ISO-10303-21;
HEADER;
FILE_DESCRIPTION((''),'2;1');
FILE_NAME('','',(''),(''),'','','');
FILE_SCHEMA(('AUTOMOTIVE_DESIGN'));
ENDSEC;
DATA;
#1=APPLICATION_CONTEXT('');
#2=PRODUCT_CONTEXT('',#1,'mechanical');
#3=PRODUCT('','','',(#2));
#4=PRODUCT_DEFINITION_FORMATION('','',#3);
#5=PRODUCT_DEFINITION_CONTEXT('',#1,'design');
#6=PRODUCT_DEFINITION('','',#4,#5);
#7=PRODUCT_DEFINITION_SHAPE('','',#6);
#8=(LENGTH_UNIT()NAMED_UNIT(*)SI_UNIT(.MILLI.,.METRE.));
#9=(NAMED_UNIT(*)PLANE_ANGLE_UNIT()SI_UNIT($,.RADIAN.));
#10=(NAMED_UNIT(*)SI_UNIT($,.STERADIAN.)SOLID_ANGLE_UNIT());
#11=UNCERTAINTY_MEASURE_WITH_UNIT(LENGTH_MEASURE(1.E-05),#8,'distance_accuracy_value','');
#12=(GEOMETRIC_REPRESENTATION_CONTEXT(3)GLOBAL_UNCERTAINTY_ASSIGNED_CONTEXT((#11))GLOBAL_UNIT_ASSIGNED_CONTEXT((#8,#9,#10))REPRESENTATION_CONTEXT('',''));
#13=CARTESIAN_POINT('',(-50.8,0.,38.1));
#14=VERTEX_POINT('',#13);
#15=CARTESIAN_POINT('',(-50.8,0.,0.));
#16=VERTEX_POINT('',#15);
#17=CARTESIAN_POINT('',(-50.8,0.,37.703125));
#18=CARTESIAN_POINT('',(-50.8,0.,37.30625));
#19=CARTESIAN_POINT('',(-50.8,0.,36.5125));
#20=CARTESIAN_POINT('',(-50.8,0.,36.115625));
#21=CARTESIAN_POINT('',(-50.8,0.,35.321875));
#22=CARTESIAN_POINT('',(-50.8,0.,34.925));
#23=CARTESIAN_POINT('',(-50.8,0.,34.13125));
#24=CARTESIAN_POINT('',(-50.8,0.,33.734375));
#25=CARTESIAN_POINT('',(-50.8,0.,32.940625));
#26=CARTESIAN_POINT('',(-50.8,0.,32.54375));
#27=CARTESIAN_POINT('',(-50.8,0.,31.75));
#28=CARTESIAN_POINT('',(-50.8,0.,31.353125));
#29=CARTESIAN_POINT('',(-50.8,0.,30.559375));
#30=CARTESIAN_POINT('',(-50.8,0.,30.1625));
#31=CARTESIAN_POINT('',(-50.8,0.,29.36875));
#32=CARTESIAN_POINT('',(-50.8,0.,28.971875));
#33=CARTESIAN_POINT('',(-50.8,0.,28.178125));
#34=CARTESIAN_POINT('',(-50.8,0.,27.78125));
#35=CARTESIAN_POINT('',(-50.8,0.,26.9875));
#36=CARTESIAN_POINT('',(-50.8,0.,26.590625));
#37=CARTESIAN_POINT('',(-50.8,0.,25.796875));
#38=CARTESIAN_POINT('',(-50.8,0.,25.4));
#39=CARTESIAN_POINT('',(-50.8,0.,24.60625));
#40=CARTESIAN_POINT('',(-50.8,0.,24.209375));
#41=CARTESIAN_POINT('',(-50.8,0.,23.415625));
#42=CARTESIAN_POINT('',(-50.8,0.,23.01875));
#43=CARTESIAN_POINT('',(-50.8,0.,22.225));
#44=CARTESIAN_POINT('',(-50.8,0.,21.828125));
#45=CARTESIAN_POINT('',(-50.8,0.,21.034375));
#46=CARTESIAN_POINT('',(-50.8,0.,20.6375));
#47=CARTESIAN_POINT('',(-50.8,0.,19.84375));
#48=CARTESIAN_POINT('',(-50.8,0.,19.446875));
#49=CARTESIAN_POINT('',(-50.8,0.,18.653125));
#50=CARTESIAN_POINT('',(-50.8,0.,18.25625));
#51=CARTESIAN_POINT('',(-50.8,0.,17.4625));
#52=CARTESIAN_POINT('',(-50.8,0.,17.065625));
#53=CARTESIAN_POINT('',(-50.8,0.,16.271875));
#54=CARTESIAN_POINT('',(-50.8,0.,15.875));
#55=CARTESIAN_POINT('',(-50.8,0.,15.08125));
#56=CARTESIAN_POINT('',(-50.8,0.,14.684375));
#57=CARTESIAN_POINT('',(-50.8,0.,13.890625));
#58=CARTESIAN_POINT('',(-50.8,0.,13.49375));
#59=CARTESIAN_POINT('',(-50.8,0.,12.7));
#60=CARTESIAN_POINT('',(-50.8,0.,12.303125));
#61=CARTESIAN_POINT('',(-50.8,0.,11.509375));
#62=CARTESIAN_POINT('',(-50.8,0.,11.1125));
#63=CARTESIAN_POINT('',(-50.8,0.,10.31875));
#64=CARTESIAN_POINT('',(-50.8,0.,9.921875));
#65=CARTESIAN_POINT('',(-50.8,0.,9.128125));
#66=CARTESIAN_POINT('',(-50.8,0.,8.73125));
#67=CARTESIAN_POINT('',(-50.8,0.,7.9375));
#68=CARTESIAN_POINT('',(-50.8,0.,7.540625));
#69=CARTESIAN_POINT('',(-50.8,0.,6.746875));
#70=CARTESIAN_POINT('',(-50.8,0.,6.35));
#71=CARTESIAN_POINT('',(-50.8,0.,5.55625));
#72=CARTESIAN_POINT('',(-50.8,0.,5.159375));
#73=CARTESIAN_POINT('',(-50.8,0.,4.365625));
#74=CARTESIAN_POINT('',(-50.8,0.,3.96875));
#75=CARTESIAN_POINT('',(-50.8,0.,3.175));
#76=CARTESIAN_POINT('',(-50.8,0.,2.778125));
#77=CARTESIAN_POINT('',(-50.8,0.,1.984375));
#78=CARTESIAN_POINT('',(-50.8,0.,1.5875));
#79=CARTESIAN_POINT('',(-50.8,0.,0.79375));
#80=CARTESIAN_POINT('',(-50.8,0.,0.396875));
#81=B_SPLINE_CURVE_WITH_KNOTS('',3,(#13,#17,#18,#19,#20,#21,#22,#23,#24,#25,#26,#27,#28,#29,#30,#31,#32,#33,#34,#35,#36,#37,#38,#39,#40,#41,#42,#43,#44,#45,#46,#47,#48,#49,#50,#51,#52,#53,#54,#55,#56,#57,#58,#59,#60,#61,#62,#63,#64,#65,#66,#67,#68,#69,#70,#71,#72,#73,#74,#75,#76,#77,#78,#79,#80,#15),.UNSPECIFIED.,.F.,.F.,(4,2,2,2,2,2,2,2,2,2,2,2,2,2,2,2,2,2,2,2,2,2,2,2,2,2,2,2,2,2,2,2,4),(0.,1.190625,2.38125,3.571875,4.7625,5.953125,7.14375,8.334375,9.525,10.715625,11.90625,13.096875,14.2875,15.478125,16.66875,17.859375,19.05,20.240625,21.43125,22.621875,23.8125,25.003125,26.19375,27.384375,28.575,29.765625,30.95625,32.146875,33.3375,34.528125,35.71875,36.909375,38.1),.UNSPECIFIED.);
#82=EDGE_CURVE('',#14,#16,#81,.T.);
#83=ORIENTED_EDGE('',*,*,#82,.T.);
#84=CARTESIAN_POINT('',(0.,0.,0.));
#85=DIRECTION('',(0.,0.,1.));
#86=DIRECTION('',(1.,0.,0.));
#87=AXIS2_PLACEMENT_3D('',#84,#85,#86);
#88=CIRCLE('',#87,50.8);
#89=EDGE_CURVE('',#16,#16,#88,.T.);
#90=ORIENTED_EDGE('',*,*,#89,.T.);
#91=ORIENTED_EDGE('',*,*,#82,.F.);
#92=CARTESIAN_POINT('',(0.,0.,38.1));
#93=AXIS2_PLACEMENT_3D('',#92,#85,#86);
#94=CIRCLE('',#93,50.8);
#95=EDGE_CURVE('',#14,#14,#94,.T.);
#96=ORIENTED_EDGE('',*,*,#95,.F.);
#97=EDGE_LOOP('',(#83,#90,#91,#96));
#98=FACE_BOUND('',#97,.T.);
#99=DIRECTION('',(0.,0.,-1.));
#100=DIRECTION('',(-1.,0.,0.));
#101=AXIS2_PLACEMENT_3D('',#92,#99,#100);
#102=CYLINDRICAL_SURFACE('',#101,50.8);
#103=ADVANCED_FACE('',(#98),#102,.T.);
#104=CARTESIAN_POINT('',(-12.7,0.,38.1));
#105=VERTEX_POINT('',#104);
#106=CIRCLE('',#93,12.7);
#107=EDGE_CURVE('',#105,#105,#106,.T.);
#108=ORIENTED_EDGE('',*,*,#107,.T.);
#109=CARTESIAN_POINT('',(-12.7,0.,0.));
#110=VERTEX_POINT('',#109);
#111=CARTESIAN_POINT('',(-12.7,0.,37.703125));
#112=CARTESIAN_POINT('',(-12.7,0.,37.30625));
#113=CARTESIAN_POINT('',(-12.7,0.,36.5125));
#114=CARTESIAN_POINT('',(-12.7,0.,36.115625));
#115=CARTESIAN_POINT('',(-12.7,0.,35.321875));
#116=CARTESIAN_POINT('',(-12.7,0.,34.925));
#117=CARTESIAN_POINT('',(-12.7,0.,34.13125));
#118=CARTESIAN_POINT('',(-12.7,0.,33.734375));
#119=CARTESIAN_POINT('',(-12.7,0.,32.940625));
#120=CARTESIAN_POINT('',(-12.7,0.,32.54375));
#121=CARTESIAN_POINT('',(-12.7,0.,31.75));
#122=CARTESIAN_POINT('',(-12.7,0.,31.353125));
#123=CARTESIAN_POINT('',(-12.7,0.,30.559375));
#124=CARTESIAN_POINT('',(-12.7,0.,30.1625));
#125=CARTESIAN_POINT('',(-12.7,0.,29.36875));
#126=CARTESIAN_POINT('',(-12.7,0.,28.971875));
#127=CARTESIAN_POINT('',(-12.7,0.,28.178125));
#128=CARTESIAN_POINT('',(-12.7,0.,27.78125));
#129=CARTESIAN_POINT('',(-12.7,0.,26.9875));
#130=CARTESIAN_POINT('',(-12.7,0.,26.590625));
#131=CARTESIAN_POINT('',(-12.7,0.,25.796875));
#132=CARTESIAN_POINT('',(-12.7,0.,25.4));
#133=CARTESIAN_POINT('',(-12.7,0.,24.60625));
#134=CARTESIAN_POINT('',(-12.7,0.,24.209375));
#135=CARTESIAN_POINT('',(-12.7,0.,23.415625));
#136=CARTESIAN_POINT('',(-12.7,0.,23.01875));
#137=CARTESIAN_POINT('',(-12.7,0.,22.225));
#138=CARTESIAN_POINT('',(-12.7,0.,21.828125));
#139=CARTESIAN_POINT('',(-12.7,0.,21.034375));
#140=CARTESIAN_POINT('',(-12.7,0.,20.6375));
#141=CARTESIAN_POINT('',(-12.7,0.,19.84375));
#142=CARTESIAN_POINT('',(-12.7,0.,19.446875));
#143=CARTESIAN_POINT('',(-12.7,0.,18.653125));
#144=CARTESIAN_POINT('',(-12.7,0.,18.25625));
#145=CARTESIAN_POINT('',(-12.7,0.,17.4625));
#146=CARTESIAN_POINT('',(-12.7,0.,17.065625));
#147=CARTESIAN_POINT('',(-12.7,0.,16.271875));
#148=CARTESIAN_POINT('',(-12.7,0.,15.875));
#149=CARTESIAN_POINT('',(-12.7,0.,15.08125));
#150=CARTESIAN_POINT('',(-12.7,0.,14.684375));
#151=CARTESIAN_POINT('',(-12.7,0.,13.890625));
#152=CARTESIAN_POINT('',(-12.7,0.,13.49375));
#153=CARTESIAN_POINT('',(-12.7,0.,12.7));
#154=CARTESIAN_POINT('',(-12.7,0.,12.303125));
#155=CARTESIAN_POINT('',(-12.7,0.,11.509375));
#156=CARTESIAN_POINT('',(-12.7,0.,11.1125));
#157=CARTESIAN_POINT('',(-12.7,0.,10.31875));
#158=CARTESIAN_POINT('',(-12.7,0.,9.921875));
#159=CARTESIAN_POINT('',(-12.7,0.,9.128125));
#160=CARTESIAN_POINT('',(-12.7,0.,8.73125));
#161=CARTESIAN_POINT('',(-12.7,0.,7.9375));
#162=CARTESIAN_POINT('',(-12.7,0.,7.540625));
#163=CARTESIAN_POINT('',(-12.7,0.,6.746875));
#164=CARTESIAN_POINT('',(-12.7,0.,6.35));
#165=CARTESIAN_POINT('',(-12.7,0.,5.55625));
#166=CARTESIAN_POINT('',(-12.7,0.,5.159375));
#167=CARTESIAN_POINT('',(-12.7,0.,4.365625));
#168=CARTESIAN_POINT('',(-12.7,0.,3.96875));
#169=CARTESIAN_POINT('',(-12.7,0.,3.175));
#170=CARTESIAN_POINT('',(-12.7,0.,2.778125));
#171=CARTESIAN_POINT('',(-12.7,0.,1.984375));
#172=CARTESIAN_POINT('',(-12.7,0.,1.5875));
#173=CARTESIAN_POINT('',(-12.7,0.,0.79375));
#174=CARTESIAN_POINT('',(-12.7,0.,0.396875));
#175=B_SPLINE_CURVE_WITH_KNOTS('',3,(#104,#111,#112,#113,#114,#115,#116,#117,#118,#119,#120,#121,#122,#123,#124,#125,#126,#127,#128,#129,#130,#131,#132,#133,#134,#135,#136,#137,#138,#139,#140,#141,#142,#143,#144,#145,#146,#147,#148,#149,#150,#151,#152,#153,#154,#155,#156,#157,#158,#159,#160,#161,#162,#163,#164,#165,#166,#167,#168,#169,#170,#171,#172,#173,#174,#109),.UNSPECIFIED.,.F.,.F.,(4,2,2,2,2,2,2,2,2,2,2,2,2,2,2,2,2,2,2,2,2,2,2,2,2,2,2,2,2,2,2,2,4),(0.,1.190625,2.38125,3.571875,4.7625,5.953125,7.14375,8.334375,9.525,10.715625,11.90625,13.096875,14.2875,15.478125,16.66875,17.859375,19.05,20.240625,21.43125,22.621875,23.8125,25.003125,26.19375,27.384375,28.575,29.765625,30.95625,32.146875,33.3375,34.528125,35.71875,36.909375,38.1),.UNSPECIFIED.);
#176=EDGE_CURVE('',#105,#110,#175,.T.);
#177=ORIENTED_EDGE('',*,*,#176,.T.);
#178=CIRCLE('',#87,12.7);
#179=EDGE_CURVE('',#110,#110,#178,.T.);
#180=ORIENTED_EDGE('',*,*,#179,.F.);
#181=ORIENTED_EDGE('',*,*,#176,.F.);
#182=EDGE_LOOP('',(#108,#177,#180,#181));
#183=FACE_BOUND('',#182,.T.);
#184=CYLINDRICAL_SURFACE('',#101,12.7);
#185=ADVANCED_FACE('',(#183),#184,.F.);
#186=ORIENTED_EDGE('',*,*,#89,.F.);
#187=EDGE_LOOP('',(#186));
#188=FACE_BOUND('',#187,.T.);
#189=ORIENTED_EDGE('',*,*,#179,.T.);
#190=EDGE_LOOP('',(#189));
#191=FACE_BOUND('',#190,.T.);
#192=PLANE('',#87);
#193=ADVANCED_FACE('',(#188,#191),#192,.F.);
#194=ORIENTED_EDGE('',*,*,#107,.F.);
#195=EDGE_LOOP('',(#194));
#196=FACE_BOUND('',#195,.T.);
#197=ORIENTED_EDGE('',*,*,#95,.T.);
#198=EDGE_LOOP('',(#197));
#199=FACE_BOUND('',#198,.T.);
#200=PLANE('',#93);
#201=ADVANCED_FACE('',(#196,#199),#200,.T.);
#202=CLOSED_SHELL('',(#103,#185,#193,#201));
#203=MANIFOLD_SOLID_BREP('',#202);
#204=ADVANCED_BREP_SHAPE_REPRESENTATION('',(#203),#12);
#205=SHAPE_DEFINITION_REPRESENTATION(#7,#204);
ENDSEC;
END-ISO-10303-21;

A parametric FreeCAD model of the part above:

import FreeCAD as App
import Part
import Sketcher
from FreeCAD import Vector
Q = App.Units.Quantity

doc = App.newDocument("Part")
body = doc.addObject("PartDesign::Body", "Body")

sketch1 = body.newObject("Sketcher::SketchObject", "Sketch")
sketch1.AttachmentSupport = (doc.getObject("XY_Plane"), [""])
sketch1.MapMode = "FlatFace"
sketch1.addGeometry([
    Part.Circle(Vector(0, 0, 0), Vector(0, 0, 1), 51),
    Part.Circle(Vector(0, 0, 0), Vector(0, 0, 1), 13),
], False)
sketch1.addConstraint([
    Sketcher.Constraint("Coincident", 0, 3, -1, 1),
    Sketcher.Constraint("Coincident", 1, 3, -1, 1),
    Sketcher.Constraint("Diameter", 0, Q("4 in")),
    Sketcher.Constraint("Diameter", 1, Q("1 in")),
])
pad1 = body.newObject("PartDesign::Pad", "Pad")
pad1.Profile = sketch1
pad1.Length = Q("1.5 in")

doc.recompute()
